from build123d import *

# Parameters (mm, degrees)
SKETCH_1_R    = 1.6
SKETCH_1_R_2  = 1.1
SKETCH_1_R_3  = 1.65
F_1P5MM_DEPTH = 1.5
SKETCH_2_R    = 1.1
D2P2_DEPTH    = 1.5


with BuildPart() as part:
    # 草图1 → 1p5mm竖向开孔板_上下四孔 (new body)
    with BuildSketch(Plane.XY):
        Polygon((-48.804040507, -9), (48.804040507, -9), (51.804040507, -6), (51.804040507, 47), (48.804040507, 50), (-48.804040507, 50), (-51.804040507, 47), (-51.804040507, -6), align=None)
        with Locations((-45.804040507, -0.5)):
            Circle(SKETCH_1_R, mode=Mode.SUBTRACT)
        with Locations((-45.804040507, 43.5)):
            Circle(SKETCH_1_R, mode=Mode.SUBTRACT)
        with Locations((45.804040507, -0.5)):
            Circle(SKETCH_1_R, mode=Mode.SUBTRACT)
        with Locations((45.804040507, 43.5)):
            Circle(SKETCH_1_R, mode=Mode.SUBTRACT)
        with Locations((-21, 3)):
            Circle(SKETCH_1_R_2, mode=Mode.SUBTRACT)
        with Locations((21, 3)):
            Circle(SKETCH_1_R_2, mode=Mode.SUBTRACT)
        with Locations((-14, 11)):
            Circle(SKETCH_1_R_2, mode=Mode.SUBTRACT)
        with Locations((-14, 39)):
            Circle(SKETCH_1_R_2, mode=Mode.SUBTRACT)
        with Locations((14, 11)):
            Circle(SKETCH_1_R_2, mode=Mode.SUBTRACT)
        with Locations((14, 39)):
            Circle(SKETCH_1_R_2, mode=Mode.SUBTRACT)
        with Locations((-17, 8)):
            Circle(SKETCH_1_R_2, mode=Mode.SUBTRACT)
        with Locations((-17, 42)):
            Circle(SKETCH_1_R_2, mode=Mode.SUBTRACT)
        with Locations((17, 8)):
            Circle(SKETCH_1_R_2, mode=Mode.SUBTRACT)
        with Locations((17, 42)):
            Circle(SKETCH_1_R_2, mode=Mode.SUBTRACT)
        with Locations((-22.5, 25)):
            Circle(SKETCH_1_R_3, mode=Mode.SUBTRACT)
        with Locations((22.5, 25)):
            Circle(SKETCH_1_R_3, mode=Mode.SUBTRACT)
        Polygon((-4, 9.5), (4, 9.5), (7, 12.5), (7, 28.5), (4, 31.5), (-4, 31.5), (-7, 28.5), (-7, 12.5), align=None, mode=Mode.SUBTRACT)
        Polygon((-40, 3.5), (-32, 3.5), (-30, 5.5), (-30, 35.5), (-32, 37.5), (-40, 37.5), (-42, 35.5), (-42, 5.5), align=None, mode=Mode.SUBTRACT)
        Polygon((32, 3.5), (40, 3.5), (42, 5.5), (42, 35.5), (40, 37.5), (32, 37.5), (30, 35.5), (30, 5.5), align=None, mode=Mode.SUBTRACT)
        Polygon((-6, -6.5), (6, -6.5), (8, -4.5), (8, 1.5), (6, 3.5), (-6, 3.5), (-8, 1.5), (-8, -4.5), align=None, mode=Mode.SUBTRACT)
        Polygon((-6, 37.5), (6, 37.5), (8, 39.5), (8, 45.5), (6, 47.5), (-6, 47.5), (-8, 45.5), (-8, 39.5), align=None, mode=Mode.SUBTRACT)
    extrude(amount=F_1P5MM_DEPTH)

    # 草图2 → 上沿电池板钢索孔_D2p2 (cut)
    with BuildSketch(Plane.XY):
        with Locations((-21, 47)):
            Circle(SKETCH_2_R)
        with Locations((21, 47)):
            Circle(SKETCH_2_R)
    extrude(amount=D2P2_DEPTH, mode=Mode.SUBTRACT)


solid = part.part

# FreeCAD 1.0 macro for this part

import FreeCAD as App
import Part
import Sketcher
from FreeCAD import Vector

doc = App.newDocument("Part")
body = doc.addObject("PartDesign::Body", "Body")

# Sketch on XY plane
sketch1 = doc.addObject("Sketcher::SketchObject", "Sketch")
body.addObject(sketch1)
sketch1.AttachmentSupport = (doc.XY_Plane, [""])
sketch1.MapMode = "FlatFace"
sketch1.addGeometry([
    Part.LineSegment(Vector(-48.8, -9, 0), Vector(48.8, -9, 0)),  # 0
    Part.LineSegment(Vector(48.8, -9, 0), Vector(51.8, -6, 0)),  # 1
    Part.LineSegment(Vector(51.8, -6, 0), Vector(51.8, 47, 0)),  # 2
    Part.LineSegment(Vector(51.8, 47, 0), Vector(48.8, 50, 0)),  # 3
    Part.LineSegment(Vector(48.8, 50, 0), Vector(-48.8, 50, 0)),  # 4
    Part.LineSegment(Vector(-48.8, 50, 0), Vector(-51.8, 47, 0)),  # 5
    Part.LineSegment(Vector(-51.8, 47, 0), Vector(-51.8, -6, 0)),  # 6
    Part.LineSegment(Vector(-51.8, -6, 0), Vector(-48.8, -9, 0)),  # 7
    Part.Circle(Vector(-45.8, -0.5, 0), Vector(0, 0, 1), 1.6),  # 8
    Part.Circle(Vector(-21, 3, 0), Vector(0, 0, 1), 1.1),  # 9
    Part.Circle(Vector(-17, 8, 0), Vector(0, 0, 1), 1.1),  # 10
    Part.Circle(Vector(-14, 11, 0), Vector(0, 0, 1), 1.1),  # 11
    Part.LineSegment(Vector(6, -6.5, 0), Vector(-6, -6.5, 0)),  # 12
    Part.LineSegment(Vector(-6, -6.5, 0), Vector(-8, -4.5, 0)),  # 13
    Part.LineSegment(Vector(-8, -4.5, 0), Vector(-8, 1.5, 0)),  # 14
    Part.LineSegment(Vector(-8, 1.5, 0), Vector(-6, 3.5, 0)),  # 15
    Part.LineSegment(Vector(-6, 3.5, 0), Vector(6, 3.5, 0)),  # 16
    Part.LineSegment(Vector(6, 3.5, 0), Vector(8, 1.5, 0)),  # 17
    Part.LineSegment(Vector(8, 1.5, 0), Vector(8, -4.5, 0)),  # 18
    Part.LineSegment(Vector(8, -4.5, 0), Vector(6, -6.5, 0)),  # 19
    Part.Circle(Vector(21, 3, 0), Vector(0, 0, 1), 1.1),  # 20
    Part.Circle(Vector(45.8, -0.5, 0), Vector(0, 0, 1), 1.6),  # 21
    Part.Circle(Vector(17, 8, 0), Vector(0, 0, 1), 1.1),  # 22
    Part.Circle(Vector(14, 11, 0), Vector(0, 0, 1), 1.1),  # 23
    Part.LineSegment(Vector(-32, 3.5, 0), Vector(-40, 3.5, 0)),  # 24
    Part.LineSegment(Vector(-40, 3.5, 0), Vector(-42, 5.5, 0)),  # 25
    Part.LineSegment(Vector(-42, 5.5, 0), Vector(-42, 35.5, 0)),  # 26
    Part.LineSegment(Vector(-42, 35.5, 0), Vector(-40, 37.5, 0)),  # 27
    Part.LineSegment(Vector(-40, 37.5, 0), Vector(-32, 37.5, 0)),  # 28
    Part.LineSegment(Vector(-32, 37.5, 0), Vector(-30, 35.5, 0)),  # 29
    Part.LineSegment(Vector(-30, 35.5, 0), Vector(-30, 5.5, 0)),  # 30
    Part.LineSegment(Vector(-30, 5.5, 0), Vector(-32, 3.5, 0)),  # 31
    Part.Circle(Vector(-22.5, 25, 0), Vector(0, 0, 1), 1.6),  # 32
    Part.Circle(Vector(-45.8, 43.5, 0), Vector(0, 0, 1), 1.6),  # 33
    Part.Circle(Vector(-14, 39, 0), Vector(0, 0, 1), 1.1),  # 34
    Part.Circle(Vector(-17, 42, 0), Vector(0, 0, 1), 1.1),  # 35
    Part.LineSegment(Vector(4, 9.5, 0), Vector(-4, 9.5, 0)),  # 36
    Part.LineSegment(Vector(-4, 9.5, 0), Vector(-7, 12.5, 0)),  # 37
    Part.LineSegment(Vector(-7, 12.5, 0), Vector(-7, 28.5, 0)),  # 38
    Part.LineSegment(Vector(-7, 28.5, 0), Vector(-4, 31.5, 0)),  # 39
    Part.LineSegment(Vector(-4, 31.5, 0), Vector(4, 31.5, 0)),  # 40
    Part.LineSegment(Vector(4, 31.5, 0), Vector(7, 28.5, 0)),  # 41
    Part.LineSegment(Vector(7, 28.5, 0), Vector(7, 12.5, 0)),  # 42
    Part.LineSegment(Vector(7, 12.5, 0), Vector(4, 9.5, 0)),  # 43
    Part.Circle(Vector(22.5, 25, 0), Vector(0, 0, 1), 1.6),  # 44
    Part.LineSegment(Vector(40, 3.5, 0), Vector(32, 3.5, 0)),  # 45
    Part.LineSegment(Vector(32, 3.5, 0), Vector(30, 5.5, 0)),  # 46
    Part.LineSegment(Vector(30, 5.5, 0), Vector(30, 35.5, 0)),  # 47
    Part.LineSegment(Vector(30, 35.5, 0), Vector(32, 37.5, 0)),  # 48
    Part.LineSegment(Vector(32, 37.5, 0), Vector(40, 37.5, 0)),  # 49
    Part.LineSegment(Vector(40, 37.5, 0), Vector(42, 35.5, 0)),  # 50
    Part.LineSegment(Vector(42, 35.5, 0), Vector(42, 5.5, 0)),  # 51
    Part.LineSegment(Vector(42, 5.5, 0), Vector(40, 3.5, 0)),  # 52
    Part.Circle(Vector(14, 39, 0), Vector(0, 0, 1), 1.1),  # 53
    Part.LineSegment(Vector(6, 37.5, 0), Vector(-6, 37.5, 0)),  # 54
    Part.LineSegment(Vector(-6, 37.5, 0), Vector(-8, 39.5, 0)),  # 55
    Part.LineSegment(Vector(-8, 39.5, 0), Vector(-8, 45.5, 0)),  # 56
    Part.LineSegment(Vector(-8, 45.5, 0), Vector(-6, 47.5, 0)),  # 57
    Part.LineSegment(Vector(-6, 47.5, 0), Vector(6, 47.5, 0)),  # 58
    Part.LineSegment(Vector(6, 47.5, 0), Vector(8, 45.5, 0)),  # 59
    Part.LineSegment(Vector(8, 45.5, 0), Vector(8, 39.5, 0)),  # 60
    Part.LineSegment(Vector(8, 39.5, 0), Vector(6, 37.5, 0)),  # 61
    Part.Circle(Vector(17, 42, 0), Vector(0, 0, 1), 1.1),  # 62
    Part.Circle(Vector(45.8, 43.5, 0), Vector(0, 0, 1), 1.6),  # 63
], False)
sketch1.addConstraint([
    Sketcher.Constraint("Coincident", 0, 2, 1, 1),
    Sketcher.Constraint("Coincident", 1, 2, 2, 1),
    Sketcher.Constraint("Coincident", 2, 2, 3, 1),
    Sketcher.Constraint("Coincident", 3, 2, 4, 1),
    Sketcher.Constraint("Coincident", 4, 2, 5, 1),
    Sketcher.Constraint("Coincident", 5, 2, 6, 1),
    Sketcher.Constraint("Coincident", 6, 2, 7, 1),
    Sketcher.Constraint("Coincident", 7, 2, 0, 1),
    Sketcher.Constraint("Coincident", 12, 2, 13, 1),
    Sketcher.Constraint("Coincident", 13, 2, 14, 1),
    Sketcher.Constraint("Coincident", 14, 2, 15, 1),
    Sketcher.Constraint("Coincident", 15, 2, 16, 1),
    Sketcher.Constraint("Coincident", 16, 2, 17, 1),
    Sketcher.Constraint("Coincident", 17, 2, 18, 1),
    Sketcher.Constraint("Coincident", 18, 2, 19, 1),
    Sketcher.Constraint("Coincident", 19, 2, 12, 1),
    Sketcher.Constraint("Coincident", 24, 2, 25, 1),
    Sketcher.Constraint("Coincident", 25, 2, 26, 1),
    Sketcher.Constraint("Coincident", 26, 2, 27, 1),
    Sketcher.Constraint("Coincident", 27, 2, 28, 1),
    Sketcher.Constraint("Coincident", 28, 2, 29, 1),
    Sketcher.Constraint("Coincident", 29, 2, 30, 1),
    Sketcher.Constraint("Coincident", 30, 2, 31, 1),
    Sketcher.Constraint("Coincident", 31, 2, 24, 1),
    Sketcher.Constraint("Coincident", 36, 2, 37, 1),
    Sketcher.Constraint("Coincident", 37, 2, 38, 1),
    Sketcher.Constraint("Coincident", 38, 2, 39, 1),
    Sketcher.Constraint("Coincident", 39, 2, 40, 1),
    Sketcher.Constraint("Coincident", 40, 2, 41, 1),
    Sketcher.Constraint("Coincident", 41, 2, 42, 1),
    Sketcher.Constraint("Coincident", 42, 2, 43, 1),
    Sketcher.Constraint("Coincident", 43, 2, 36, 1),
    Sketcher.Constraint("Coincident", 45, 2, 46, 1),
    Sketcher.Constraint("Coincident", 46, 2, 47, 1),
    Sketcher.Constraint("Coincident", 47, 2, 48, 1),
    Sketcher.Constraint("Coincident", 48, 2, 49, 1),
    Sketcher.Constraint("Coincident", 49, 2, 50, 1),
    Sketcher.Constraint("Coincident", 50, 2, 51, 1),
    Sketcher.Constraint("Coincident", 51, 2, 52, 1),
    Sketcher.Constraint("Coincident", 52, 2, 45, 1),
    Sketcher.Constraint("Coincident", 54, 2, 55, 1),
    Sketcher.Constraint("Coincident", 55, 2, 56, 1),
    Sketcher.Constraint("Coincident", 56, 2, 57, 1),
    Sketcher.Constraint("Coincident", 57, 2, 58, 1),
    Sketcher.Constraint("Coincident", 58, 2, 59, 1),
    Sketcher.Constraint("Coincident", 59, 2, 60, 1),
    Sketcher.Constraint("Coincident", 60, 2, 61, 1),
    Sketcher.Constraint("Coincident", 61, 2, 54, 1),
    Sketcher.Constraint("Horizontal", 0),
    Sketcher.Constraint("Vertical", 2),
    Sketcher.Constraint("Horizontal", 4),
    Sketcher.Constraint("Vertical", 6),
    Sketcher.Constraint("Horizontal", 12),
    Sketcher.Constraint("Vertical", 14),
    Sketcher.Constraint("Horizontal", 16),
    Sketcher.Constraint("Vertical", 18),
    Sketcher.Constraint("Horizontal", 24),
    Sketcher.Constraint("Vertical", 26),
    Sketcher.Constraint("Horizontal", 28),
    Sketcher.Constraint("Vertical", 30),
    Sketcher.Constraint("Horizontal", 36),
    Sketcher.Constraint("Vertical", 38),
    Sketcher.Constraint("Horizontal", 40),
    Sketcher.Constraint("Vertical", 42),
    Sketcher.Constraint("Horizontal", 45),
    Sketcher.Constraint("Vertical", 47),
    Sketcher.Constraint("Horizontal", 49),
    Sketcher.Constraint("Vertical", 51),
    Sketcher.Constraint("Horizontal", 54),
    Sketcher.Constraint("Vertical", 56),
    Sketcher.Constraint("Horizontal", 58),
    Sketcher.Constraint("Vertical", 60),
    Sketcher.Constraint("Equal", 9, 10),
    Sketcher.Constraint("Equal", 10, 11),
    Sketcher.Constraint("Equal", 11, 20),
    Sketcher.Constraint("Equal", 8, 21),
    Sketcher.Constraint("Equal", 20, 22),
    Sketcher.Constraint("Equal", 22, 23),
    Sketcher.Constraint("Equal", 21, 33),
    Sketcher.Constraint("Equal", 23, 34),
    Sketcher.Constraint("Equal", 34, 35),
    Sketcher.Constraint("Equal", 32, 44),
    Sketcher.Constraint("Equal", 35, 53),
    Sketcher.Constraint("Equal", 53, 62),
    Sketcher.Constraint("Equal", 33, 63),
    Sketcher.Constraint("Symmetric", 9, 3, 20, 3, -2),
    Sketcher.Constraint("Symmetric", 8, 3, 21, 3, -2),
    Sketcher.Constraint("Symmetric", 10, 3, 22, 3, -2),
    Sketcher.Constraint("Symmetric", 11, 3, 23, 3, -2),
    Sketcher.Constraint("Symmetric", 32, 3, 44, 3, -2),
    Sketcher.Constraint("Symmetric", 34, 3, 53, 3, -2),
    Sketcher.Constraint("Symmetric", 35, 3, 62, 3, -2),
    Sketcher.Constraint("Symmetric", 33, 3, 63, 3, -2),
    Sketcher.Constraint("Symmetric", 2, 2, 5, 2, -2),
    Sketcher.Constraint("Symmetric", 14, 2, 17, 2, -2),
    Sketcher.Constraint("Symmetric", 38, 2, 41, 2, -2),
    Sketcher.Constraint("Symmetric", 31, 2, 45, 2, -2),
    Sketcher.Constraint("Symmetric", 30, 2, 46, 2, -2),
    Sketcher.Constraint("Symmetric", 28, 2, 48, 2, -2),
    Sketcher.Constraint("Symmetric", 26, 2, 50, 2, -2),
    Sketcher.Constraint("Symmetric", 56, 2, 59, 2, -2),
    Sketcher.Constraint("Perpendicular", 1, 3),
    Sketcher.Constraint("Perpendicular", 3, 5),
    Sketcher.Constraint("Perpendicular", 5, 7),
    Sketcher.Constraint("Parallel", 7, 13),
    Sketcher.Constraint("Perpendicular", 13, 15),
    Sketcher.Constraint("Perpendicular", 15, 17),
    Sketcher.Constraint("Perpendicular", 17, 19),
    Sketcher.Constraint("Perpendicular", 19, 25),
    Sketcher.Constraint("Perpendicular", 25, 27),
    Sketcher.Constraint("Perpendicular", 27, 29),
    Sketcher.Constraint("Perpendicular", 29, 31),
    Sketcher.Constraint("Perpendicular", 31, 37),
    Sketcher.Constraint("Perpendicular", 37, 39),
    Sketcher.Constraint("Perpendicular", 39, 41),
    Sketcher.Constraint("Perpendicular", 41, 43),
    Sketcher.Constraint("Perpendicular", 43, 46),
    Sketcher.Constraint("Perpendicular", 46, 48),
    Sketcher.Constraint("Perpendicular", 48, 50),
    Sketcher.Constraint("Perpendicular", 50, 52),
    Sketcher.Constraint("Perpendicular", 52, 55),
    Sketcher.Constraint("Perpendicular", 55, 57),
    Sketcher.Constraint("Perpendicular", 57, 59),
    Sketcher.Constraint("Perpendicular", 59, 61),
    Sketcher.Constraint("Horizontal", 1, 2, 6, 2),
    Sketcher.Constraint("Horizontal", 13, 2, 18, 2),
    Sketcher.Constraint("Horizontal", 16, 2, 24, 2),
    Sketcher.Constraint("Horizontal", 26, 2, 29, 2),
    Sketcher.Constraint("Horizontal", 25, 2, 30, 2),
    Sketcher.Constraint("Horizontal", 37, 2, 42, 2),
    Sketcher.Constraint("Horizontal", 46, 2, 51, 2),
    Sketcher.Constraint("Horizontal", 49, 2, 54, 2),
    Sketcher.Constraint("Horizontal", 55, 2, 60, 2),
    Sketcher.Constraint("Vertical", 8, 3, 33, 3),
    Sketcher.Constraint("Vertical", 11, 3, 34, 3),
    Sketcher.Constraint("Vertical", 10, 3, 35, 3),
    Sketcher.Constraint("Vertical", 0, 2, 3, 2),
    Sketcher.Constraint("Vertical", 12, 2, 15, 2),
    Sketcher.Constraint("Vertical", 24, 2, 27, 2),
    Sketcher.Constraint("Vertical", 36, 2, 39, 2),
    Sketcher.Constraint("Vertical", 15, 2, 54, 2),
    Sketcher.Constraint("Vertical", 14, 2, 55, 2),
    Sketcher.Constraint("Vertical", 54, 2, 57, 2),
    Sketcher.Constraint("Equal", 28, 36),
    Sketcher.Constraint("Equal", 18, 56),
    Sketcher.Constraint("Equal", 19, 25),
    Sketcher.Constraint("Equal", 7, 37),
    Sketcher.Constraint("Diameter", 8, 3.2),
    Sketcher.Constraint("Diameter", 9, 2.2),
    Sketcher.Constraint("Diameter", 32, 3.3),
    Sketcher.Constraint("DistanceX", 12, 2, 12, 1, 12.0),
    Sketcher.Constraint("DistanceX", 24, 2, 24, 1, 8.0),
    Sketcher.Constraint("DistanceY", 2, 1, 2, 2, 53.0),
    Sketcher.Constraint("DistanceY", 14, 1, 14, 2, 6.0),
    Sketcher.Constraint("DistanceY", 26, 1, 26, 2, 30.0),
    Sketcher.Constraint("DistanceY", 38, 1, 38, 2, 16.0),
    Sketcher.Constraint("DistanceX", 9, 3, -1, 1, 21.0),
    Sketcher.Constraint("DistanceY", -1, 1, 9, 3, 3.0),
    Sketcher.Constraint("DistanceX", 10, 3, -1, 1, 17.0),
    Sketcher.Constraint("DistanceY", -1, 1, 10, 3, 8.0),
    Sketcher.Constraint("DistanceX", 11, 3, -1, 1, 14.0),
    Sketcher.Constraint("DistanceY", -1, 1, 11, 3, 11.0),
    Sketcher.Constraint("DistanceY", -1, 1, 32, 3, 25.0),
    Sketcher.Constraint("DistanceY", -1, 1, 34, 3, 39.0),
    Sketcher.Constraint("DistanceY", -1, 1, 35, 3, 42.0),
    Sketcher.Constraint("DistanceY", 0, 2, -1, 1, 9.0),
    Sketcher.Constraint("DistanceY", 1, 2, -1, 1, 6.0),
    Sketcher.Constraint("DistanceX", 13, 2, -1, 1, 8.0),
    Sketcher.Constraint("DistanceX", 24, 2, -1, 1, 40.0),
    Sketcher.Constraint("DistanceY", 8, 3, -1, 1, 0.5),
    Sketcher.Constraint("DistanceX", 32, 3, -1, 1, 22.5),
    Sketcher.Constraint("DistanceY", -1, 1, 33, 3, 43.5),
    Sketcher.Constraint("DistanceY", 12, 2, -1, 1, 6.5),
    Sketcher.Constraint("DistanceY", -1, 1, 36, 2, 9.5),
    Sketcher.Constraint("DistanceX", 0, 1, 0, 2, 97.608081),
    Sketcher.Constraint("DistanceX", 8, 3, -1, 1, 45.804041),
])
pad1 = doc.addObject("PartDesign::Pad", "Pad")
body.addObject(pad1)
pad1.Profile = sketch1
pad1.Length = 1.5

# Sketch on XY plane
sketch2 = doc.addObject("Sketcher::SketchObject", "Sketch001")
body.addObject(sketch2)
sketch2.AttachmentSupport = (doc.XY_Plane, [""])
sketch2.MapMode = "FlatFace"
sketch2.addGeometry([
    Part.Circle(Vector(-21, 47, 0), Vector(0, 0, 1), 1.1),
    Part.Circle(Vector(21, 47, 0), Vector(0, 0, 1), 1.1),
], False)
sketch2.addConstraint([
    Sketcher.Constraint("Equal", 0, 1),
    Sketcher.Constraint("Symmetric", 0, 3, 1, 3, -2),
    Sketcher.Constraint("Diameter", 0, 2.2),
    Sketcher.Constraint("DistanceX", 0, 3, -1, 1, 21.0),
    Sketcher.Constraint("DistanceY", -1, 1, 0, 3, 47.0),
])
pocket1 = doc.addObject("PartDesign::Pocket", "Pocket")
body.addObject(pocket1)
pocket1.Profile = sketch2
pocket1.Length = 1.5
pocket1.Reversed = True

doc.recompute()
